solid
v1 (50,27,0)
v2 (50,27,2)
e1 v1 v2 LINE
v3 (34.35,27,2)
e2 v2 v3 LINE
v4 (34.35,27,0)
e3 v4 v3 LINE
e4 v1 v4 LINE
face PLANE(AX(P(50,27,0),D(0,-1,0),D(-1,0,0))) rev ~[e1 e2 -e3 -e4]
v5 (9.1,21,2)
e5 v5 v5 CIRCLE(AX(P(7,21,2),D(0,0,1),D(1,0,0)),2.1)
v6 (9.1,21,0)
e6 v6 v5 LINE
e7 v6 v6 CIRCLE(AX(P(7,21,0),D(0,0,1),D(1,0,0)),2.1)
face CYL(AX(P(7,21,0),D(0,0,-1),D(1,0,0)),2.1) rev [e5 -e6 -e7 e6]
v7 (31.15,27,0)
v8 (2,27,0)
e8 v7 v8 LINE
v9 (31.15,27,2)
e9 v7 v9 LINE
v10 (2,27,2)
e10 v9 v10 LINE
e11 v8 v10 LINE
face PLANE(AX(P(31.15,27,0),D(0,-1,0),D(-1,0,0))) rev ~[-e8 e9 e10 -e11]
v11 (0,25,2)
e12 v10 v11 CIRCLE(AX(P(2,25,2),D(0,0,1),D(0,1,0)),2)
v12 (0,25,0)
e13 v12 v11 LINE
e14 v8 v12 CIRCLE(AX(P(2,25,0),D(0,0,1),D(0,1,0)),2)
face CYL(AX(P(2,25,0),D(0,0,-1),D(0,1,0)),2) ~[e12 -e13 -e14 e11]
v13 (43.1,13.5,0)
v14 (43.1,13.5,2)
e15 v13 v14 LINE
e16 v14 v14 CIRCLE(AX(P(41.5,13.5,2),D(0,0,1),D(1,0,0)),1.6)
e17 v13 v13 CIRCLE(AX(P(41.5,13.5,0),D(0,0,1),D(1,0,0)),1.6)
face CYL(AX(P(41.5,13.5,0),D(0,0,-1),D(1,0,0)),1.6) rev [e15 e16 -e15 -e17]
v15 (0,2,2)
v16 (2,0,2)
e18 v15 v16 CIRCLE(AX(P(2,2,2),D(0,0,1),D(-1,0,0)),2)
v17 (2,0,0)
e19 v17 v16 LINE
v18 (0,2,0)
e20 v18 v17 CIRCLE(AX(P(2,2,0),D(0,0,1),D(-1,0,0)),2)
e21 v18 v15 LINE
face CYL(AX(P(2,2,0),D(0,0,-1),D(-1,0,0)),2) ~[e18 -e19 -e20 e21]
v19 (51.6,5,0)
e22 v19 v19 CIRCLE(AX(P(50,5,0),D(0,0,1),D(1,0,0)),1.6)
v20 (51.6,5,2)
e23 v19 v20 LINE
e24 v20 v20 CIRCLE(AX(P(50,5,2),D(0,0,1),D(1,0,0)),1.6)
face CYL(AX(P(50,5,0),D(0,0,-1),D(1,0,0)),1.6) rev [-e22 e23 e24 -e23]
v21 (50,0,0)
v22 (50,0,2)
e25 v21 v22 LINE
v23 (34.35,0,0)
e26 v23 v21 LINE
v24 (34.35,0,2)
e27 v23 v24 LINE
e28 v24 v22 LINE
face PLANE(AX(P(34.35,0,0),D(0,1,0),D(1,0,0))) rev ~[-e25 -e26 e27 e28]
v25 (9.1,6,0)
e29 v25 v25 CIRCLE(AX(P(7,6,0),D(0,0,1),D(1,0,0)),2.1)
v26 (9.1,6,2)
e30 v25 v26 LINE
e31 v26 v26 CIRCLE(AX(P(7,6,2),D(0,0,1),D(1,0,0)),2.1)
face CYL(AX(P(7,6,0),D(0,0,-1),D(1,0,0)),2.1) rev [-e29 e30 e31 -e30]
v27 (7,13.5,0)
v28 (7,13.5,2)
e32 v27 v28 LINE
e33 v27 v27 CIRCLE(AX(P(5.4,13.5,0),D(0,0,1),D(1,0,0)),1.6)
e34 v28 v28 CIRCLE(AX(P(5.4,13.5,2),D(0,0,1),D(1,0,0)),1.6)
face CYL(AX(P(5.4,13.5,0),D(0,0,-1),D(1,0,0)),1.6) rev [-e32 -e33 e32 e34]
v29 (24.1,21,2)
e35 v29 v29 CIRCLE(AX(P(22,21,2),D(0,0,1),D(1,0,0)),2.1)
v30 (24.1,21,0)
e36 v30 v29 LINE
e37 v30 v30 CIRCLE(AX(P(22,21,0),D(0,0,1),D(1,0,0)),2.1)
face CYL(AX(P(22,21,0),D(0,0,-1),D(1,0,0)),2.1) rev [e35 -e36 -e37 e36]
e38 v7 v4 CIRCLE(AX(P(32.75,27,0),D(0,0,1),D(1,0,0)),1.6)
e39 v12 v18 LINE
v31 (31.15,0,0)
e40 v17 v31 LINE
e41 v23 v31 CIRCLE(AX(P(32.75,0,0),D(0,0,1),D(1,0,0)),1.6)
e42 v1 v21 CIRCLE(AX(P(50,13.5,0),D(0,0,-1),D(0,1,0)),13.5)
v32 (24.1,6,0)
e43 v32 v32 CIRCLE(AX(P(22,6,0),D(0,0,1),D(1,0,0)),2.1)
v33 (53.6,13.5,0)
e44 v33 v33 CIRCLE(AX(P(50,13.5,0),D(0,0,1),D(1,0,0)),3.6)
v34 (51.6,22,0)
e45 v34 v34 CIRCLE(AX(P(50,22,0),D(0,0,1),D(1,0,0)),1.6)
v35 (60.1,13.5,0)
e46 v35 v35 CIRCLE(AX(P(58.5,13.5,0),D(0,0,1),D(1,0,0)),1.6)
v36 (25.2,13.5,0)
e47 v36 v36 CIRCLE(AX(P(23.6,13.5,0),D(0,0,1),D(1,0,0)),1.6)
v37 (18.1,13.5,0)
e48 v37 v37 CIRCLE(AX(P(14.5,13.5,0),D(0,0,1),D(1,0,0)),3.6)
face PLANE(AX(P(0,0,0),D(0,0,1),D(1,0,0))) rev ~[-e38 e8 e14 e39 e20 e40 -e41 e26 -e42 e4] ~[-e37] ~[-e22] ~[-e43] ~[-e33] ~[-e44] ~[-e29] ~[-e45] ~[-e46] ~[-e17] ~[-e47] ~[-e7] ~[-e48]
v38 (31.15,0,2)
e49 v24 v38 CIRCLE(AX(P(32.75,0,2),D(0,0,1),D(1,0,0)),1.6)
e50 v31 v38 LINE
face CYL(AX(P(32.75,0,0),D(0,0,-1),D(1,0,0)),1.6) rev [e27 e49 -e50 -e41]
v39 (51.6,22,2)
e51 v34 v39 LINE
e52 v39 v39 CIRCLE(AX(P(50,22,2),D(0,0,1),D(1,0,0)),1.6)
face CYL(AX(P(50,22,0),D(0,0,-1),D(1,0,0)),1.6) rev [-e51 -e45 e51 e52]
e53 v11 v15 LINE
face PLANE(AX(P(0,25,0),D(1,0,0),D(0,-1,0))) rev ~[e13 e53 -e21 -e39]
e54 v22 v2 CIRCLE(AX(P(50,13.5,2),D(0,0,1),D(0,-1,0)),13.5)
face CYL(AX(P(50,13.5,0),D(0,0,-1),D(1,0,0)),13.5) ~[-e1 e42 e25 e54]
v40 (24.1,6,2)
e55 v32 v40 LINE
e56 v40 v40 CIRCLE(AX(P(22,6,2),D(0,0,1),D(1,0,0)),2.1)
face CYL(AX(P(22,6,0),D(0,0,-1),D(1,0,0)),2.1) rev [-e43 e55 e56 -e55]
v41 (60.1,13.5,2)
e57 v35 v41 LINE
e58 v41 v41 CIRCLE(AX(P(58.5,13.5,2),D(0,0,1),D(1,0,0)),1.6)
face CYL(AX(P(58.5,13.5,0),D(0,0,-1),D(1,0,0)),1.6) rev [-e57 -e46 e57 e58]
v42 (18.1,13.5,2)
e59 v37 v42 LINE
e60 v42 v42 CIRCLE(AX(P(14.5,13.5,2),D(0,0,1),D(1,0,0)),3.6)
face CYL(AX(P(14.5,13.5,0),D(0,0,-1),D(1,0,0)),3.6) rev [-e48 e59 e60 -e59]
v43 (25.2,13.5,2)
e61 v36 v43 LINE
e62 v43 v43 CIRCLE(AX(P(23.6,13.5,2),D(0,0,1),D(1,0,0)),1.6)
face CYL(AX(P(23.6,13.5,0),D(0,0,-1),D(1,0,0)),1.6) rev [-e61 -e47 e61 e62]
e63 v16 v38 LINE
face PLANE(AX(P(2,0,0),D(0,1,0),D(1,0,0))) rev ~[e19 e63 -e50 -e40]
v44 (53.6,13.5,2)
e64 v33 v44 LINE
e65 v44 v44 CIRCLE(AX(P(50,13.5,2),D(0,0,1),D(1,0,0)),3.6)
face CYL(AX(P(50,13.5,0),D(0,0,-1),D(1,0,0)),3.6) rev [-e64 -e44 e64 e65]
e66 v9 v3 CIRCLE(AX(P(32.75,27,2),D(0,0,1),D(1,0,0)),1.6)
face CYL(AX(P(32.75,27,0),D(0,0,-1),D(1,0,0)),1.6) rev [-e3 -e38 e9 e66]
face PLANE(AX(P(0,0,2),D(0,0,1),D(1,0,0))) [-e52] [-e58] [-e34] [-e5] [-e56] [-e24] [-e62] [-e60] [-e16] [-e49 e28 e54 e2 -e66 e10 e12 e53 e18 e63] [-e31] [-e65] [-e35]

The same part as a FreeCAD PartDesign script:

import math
import FreeCAD as App
import Part
import Sketcher
Q = App.Units.Quantity

doc = App.newDocument("Part")
body = doc.addObject("PartDesign::Body", "Body")

# Sketch on XY plane
sketch1 = body.newObject("Sketcher::SketchObject", "Sketch")
sketch1.AttachmentSupport = (doc.getObject("XY_Plane"), [""])
sketch1.MapMode = "FlatFace"
sketch1.addGeometry(Part.ArcOfCircle(Part.Circle(App.Vector(2, 2, 0), App.Vector(0, 0, 1), 2), math.radians(180), math.radians(270)), False)
sketch1.addGeometry(Part.LineSegment(App.Vector(2, 0, 0), App.Vector(31.15, 0, 0)), False)
sketch1.addGeometry(Part.ArcOfCircle(Part.Circle(App.Vector(32.75, 0, 0), App.Vector(0, 0, 1), 1.6), math.radians(0), math.radians(180)), False)
sketch1.addGeometry(Part.LineSegment(App.Vector(34.35, 0, 0), App.Vector(50, 0, 0)), False)
sketch1.addGeometry(Part.ArcOfCircle(Part.Circle(App.Vector(50, 13.5, 0), App.Vector(0, 0, 1), 13.5), math.radians(-90), math.radians(90)), False)
sketch1.addGeometry(Part.LineSegment(App.Vector(50, 27, 0), App.Vector(34.35, 27, 0)), False)
sketch1.addGeometry(Part.ArcOfCircle(Part.Circle(App.Vector(32.75, 27, 0), App.Vector(0, 0, 1), 1.6), math.radians(180), math.radians(360)), False)
sketch1.addGeometry(Part.LineSegment(App.Vector(31.15, 27, 0), App.Vector(2, 27, 0)), False)
sketch1.addGeometry(Part.ArcOfCircle(Part.Circle(App.Vector(2, 25, 0), App.Vector(0, 0, 1), 2), math.radians(90), math.radians(180)), False)
sketch1.addGeometry(Part.LineSegment(App.Vector(0, 25, 0), App.Vector(0, 2, 0)), False)
sketch1.addGeometry(Part.Circle(App.Vector(7, 6, 0), App.Vector(0, 0, 1), 2.1), False)
sketch1.addGeometry(Part.Circle(App.Vector(22, 6, 0), App.Vector(0, 0, 1), 2.1), False)
sketch1.addGeometry(Part.Circle(App.Vector(5.4, 13.5, 0), App.Vector(0, 0, 1), 1.6), False)
sketch1.addGeometry(Part.Circle(App.Vector(14.5, 13.5, 0), App.Vector(0, 0, 1), 3.6), False)
sketch1.addGeometry(Part.Circle(App.Vector(7, 21, 0), App.Vector(0, 0, 1), 2.1), False)
sketch1.addGeometry(Part.Circle(App.Vector(23.6, 13.5, 0), App.Vector(0, 0, 1), 1.6), False)
sketch1.addGeometry(Part.Circle(App.Vector(22, 21, 0), App.Vector(0, 0, 1), 2.1), False)
sketch1.addGeometry(Part.Circle(App.Vector(50, 22, 0), App.Vector(0, 0, 1), 1.6), False)
sketch1.addGeometry(Part.Circle(App.Vector(50, 5, 0), App.Vector(0, 0, 1), 1.6), False)
sketch1.addGeometry(Part.Circle(App.Vector(41.5, 13.5, 0), App.Vector(0, 0, 1), 1.6), False)
sketch1.addGeometry(Part.Circle(App.Vector(50, 13.5, 0), App.Vector(0, 0, 1), 3.6), False)
sketch1.addGeometry(Part.Circle(App.Vector(58.5, 13.5, 0), App.Vector(0, 0, 1), 1.6), False)
sketch1.addConstraint(Sketcher.Constraint("Tangent", 0, 2, 1, 1))
sketch1.addConstraint(Sketcher.Constraint("Coincident", 1, 2, 2, 2))
sketch1.addConstraint(Sketcher.Constraint("Coincident", 2, 1, 3, 1))
sketch1.addConstraint(Sketcher.Constraint("Tangent", 3, 2, 4, 1))
sketch1.addConstraint(Sketcher.Constraint("Tangent", 4, 2, 5, 1))
sketch1.addConstraint(Sketcher.Constraint("Coincident", 5, 2, 6, 2))
sketch1.addConstraint(Sketcher.Constraint("Coincident", 6, 1, 7, 1))
sketch1.addConstraint(Sketcher.Constraint("Tangent", 7, 2, 8, 1))
sketch1.addConstraint(Sketcher.Constraint("Tangent", 8, 2, 9, 1))
sketch1.addConstraint(Sketcher.Constraint("Tangent", 9, 2, 0, 1))
sketch1.addConstraint(Sketcher.Constraint("Horizontal", 1))
sketch1.addConstraint(Sketcher.Constraint("Horizontal", 3))
sketch1.addConstraint(Sketcher.Constraint("Horizontal", 5))
sketch1.addConstraint(Sketcher.Constraint("Horizontal", 7))
sketch1.addConstraint(Sketcher.Constraint("Vertical", 9))
sketch1.addConstraint(Sketcher.Constraint("Coincident", 20, 3, 4, 3))
sketch1.addConstraint(Sketcher.Constraint("Equal", 2, 6))
sketch1.addConstraint(Sketcher.Constraint("Equal", 0, 8))
sketch1.addConstraint(Sketcher.Constraint("Equal", 10, 11))
sketch1.addConstraint(Sketcher.Constraint("Equal", 6, 12))
sketch1.addConstraint(Sketcher.Constraint("Equal", 11, 14))
sketch1.addConstraint(Sketcher.Constraint("Equal", 12, 15))
sketch1.addConstraint(Sketcher.Constraint("Equal", 14, 16))
sketch1.addConstraint(Sketcher.Constraint("Equal", 15, 17))
sketch1.addConstraint(Sketcher.Constraint("Equal", 17, 18))
sketch1.addConstraint(Sketcher.Constraint("Equal", 18, 19))
sketch1.addConstraint(Sketcher.Constraint("Equal", 13, 20))
sketch1.addConstraint(Sketcher.Constraint("Equal", 19, 21))
sketch1.addConstraint(Sketcher.Constraint("PointOnObject", 2, 3, -1))
sketch1.addConstraint(Sketcher.Constraint("PointOnObject", 0, 2, -1))
sketch1.addConstraint(Sketcher.Constraint("PointOnObject", 2, 1, -1))
sketch1.addConstraint(Sketcher.Constraint("PointOnObject", 8, 2, -2))
sketch1.addConstraint(Sketcher.Constraint("Horizontal", 10, 3, 11, 3))
sketch1.addConstraint(Sketcher.Constraint("Horizontal", 4, 3, 12, 3))
sketch1.addConstraint(Sketcher.Constraint("Horizontal", 12, 3, 13, 3))
sketch1.addConstraint(Sketcher.Constraint("Horizontal", 13, 3, 15, 3))
sketch1.addConstraint(Sketcher.Constraint("Horizontal", 14, 3, 16, 3))
sketch1.addConstraint(Sketcher.Constraint("Horizontal", 15, 3, 19, 3))
sketch1.addConstraint(Sketcher.Constraint("Horizontal", 20, 3, 21, 3))
sketch1.addConstraint(Sketcher.Constraint("Horizontal", 6, 3, 4, 2))
sketch1.addConstraint(Sketcher.Constraint("Horizontal", 5, 2, 6, 1))
sketch1.addConstraint(Sketcher.Constraint("Vertical", 2, 3, 6, 3))
sketch1.addConstraint(Sketcher.Constraint("Vertical", 10, 3, 14, 3))
sketch1.addConstraint(Sketcher.Constraint("Vertical", 11, 3, 16, 3))
sketch1.addConstraint(Sketcher.Constraint("Vertical", 4, 3, 17, 3))
sketch1.addConstraint(Sketcher.Constraint("Vertical", 17, 3, 18, 3))
sketch1.addConstraint(Sketcher.Constraint("Radius", 0, Q("2 mm")))
sketch1.addConstraint(Sketcher.Constraint("Diameter", 10, Q("4.2 mm")))
sketch1.addConstraint(Sketcher.Constraint("Diameter", 12, Q("3.2 mm")))
sketch1.addConstraint(Sketcher.Constraint("Diameter", 13, Q("7.2 mm")))
sketch1.addConstraint(Sketcher.Constraint("Radius", 4, Q("13.5 mm")))
sketch1.addConstraint(Sketcher.Constraint("DistanceX", -1, 1, 4, 3, Q("50 mm")))
sketch1.addConstraint(Sketcher.Constraint("DistanceX", -1, 1, 10, 3, Q("7 mm")))
sketch1.addConstraint(Sketcher.Constraint("DistanceX", 10, 3, 11, 3, Q("15 mm")))
sketch1.addConstraint(Sketcher.Constraint("DistanceY", 10, 3, 14, 3, Q("15 mm")))
sketch1.addConstraint(Sketcher.Constraint("DistanceY", 18, 3, 17, 3, Q("17 mm")))
sketch1.addConstraint(Sketcher.Constraint("DistanceX", 19, 3, 21, 3, Q("17 mm")))
sketch1.addConstraint(Sketcher.Constraint("DistanceY", -1, 1, 10, 3, Q("6 mm")))
sketch1.addConstraint(Sketcher.Constraint("DistanceY", -1, 1, 17, 3, Q("22 mm")))
sketch1.addConstraint(Sketcher.Constraint("DistanceX", 1, 1, 1, 2, Q("29.15 mm")))
sketch1.addConstraint(Sketcher.Constraint("DistanceX", -1, 1, 12, 3, Q("5.4 mm")))
sketch1.addConstraint(Sketcher.Constraint("DistanceX", -1, 1, 13, 3, Q("14.5 mm")))
sketch1.addConstraint(Sketcher.Constraint("DistanceX", -1, 1, 15, 3, Q("23.6 mm")))
sketch1.addConstraint(Sketcher.Constraint("DistanceX", -1, 1, 19, 3, Q("41.5 mm")))
pad1 = body.newObject("PartDesign::Pad", "Pad")
pad1.Profile = sketch1
pad1.Length = 2

doc.recompute()
